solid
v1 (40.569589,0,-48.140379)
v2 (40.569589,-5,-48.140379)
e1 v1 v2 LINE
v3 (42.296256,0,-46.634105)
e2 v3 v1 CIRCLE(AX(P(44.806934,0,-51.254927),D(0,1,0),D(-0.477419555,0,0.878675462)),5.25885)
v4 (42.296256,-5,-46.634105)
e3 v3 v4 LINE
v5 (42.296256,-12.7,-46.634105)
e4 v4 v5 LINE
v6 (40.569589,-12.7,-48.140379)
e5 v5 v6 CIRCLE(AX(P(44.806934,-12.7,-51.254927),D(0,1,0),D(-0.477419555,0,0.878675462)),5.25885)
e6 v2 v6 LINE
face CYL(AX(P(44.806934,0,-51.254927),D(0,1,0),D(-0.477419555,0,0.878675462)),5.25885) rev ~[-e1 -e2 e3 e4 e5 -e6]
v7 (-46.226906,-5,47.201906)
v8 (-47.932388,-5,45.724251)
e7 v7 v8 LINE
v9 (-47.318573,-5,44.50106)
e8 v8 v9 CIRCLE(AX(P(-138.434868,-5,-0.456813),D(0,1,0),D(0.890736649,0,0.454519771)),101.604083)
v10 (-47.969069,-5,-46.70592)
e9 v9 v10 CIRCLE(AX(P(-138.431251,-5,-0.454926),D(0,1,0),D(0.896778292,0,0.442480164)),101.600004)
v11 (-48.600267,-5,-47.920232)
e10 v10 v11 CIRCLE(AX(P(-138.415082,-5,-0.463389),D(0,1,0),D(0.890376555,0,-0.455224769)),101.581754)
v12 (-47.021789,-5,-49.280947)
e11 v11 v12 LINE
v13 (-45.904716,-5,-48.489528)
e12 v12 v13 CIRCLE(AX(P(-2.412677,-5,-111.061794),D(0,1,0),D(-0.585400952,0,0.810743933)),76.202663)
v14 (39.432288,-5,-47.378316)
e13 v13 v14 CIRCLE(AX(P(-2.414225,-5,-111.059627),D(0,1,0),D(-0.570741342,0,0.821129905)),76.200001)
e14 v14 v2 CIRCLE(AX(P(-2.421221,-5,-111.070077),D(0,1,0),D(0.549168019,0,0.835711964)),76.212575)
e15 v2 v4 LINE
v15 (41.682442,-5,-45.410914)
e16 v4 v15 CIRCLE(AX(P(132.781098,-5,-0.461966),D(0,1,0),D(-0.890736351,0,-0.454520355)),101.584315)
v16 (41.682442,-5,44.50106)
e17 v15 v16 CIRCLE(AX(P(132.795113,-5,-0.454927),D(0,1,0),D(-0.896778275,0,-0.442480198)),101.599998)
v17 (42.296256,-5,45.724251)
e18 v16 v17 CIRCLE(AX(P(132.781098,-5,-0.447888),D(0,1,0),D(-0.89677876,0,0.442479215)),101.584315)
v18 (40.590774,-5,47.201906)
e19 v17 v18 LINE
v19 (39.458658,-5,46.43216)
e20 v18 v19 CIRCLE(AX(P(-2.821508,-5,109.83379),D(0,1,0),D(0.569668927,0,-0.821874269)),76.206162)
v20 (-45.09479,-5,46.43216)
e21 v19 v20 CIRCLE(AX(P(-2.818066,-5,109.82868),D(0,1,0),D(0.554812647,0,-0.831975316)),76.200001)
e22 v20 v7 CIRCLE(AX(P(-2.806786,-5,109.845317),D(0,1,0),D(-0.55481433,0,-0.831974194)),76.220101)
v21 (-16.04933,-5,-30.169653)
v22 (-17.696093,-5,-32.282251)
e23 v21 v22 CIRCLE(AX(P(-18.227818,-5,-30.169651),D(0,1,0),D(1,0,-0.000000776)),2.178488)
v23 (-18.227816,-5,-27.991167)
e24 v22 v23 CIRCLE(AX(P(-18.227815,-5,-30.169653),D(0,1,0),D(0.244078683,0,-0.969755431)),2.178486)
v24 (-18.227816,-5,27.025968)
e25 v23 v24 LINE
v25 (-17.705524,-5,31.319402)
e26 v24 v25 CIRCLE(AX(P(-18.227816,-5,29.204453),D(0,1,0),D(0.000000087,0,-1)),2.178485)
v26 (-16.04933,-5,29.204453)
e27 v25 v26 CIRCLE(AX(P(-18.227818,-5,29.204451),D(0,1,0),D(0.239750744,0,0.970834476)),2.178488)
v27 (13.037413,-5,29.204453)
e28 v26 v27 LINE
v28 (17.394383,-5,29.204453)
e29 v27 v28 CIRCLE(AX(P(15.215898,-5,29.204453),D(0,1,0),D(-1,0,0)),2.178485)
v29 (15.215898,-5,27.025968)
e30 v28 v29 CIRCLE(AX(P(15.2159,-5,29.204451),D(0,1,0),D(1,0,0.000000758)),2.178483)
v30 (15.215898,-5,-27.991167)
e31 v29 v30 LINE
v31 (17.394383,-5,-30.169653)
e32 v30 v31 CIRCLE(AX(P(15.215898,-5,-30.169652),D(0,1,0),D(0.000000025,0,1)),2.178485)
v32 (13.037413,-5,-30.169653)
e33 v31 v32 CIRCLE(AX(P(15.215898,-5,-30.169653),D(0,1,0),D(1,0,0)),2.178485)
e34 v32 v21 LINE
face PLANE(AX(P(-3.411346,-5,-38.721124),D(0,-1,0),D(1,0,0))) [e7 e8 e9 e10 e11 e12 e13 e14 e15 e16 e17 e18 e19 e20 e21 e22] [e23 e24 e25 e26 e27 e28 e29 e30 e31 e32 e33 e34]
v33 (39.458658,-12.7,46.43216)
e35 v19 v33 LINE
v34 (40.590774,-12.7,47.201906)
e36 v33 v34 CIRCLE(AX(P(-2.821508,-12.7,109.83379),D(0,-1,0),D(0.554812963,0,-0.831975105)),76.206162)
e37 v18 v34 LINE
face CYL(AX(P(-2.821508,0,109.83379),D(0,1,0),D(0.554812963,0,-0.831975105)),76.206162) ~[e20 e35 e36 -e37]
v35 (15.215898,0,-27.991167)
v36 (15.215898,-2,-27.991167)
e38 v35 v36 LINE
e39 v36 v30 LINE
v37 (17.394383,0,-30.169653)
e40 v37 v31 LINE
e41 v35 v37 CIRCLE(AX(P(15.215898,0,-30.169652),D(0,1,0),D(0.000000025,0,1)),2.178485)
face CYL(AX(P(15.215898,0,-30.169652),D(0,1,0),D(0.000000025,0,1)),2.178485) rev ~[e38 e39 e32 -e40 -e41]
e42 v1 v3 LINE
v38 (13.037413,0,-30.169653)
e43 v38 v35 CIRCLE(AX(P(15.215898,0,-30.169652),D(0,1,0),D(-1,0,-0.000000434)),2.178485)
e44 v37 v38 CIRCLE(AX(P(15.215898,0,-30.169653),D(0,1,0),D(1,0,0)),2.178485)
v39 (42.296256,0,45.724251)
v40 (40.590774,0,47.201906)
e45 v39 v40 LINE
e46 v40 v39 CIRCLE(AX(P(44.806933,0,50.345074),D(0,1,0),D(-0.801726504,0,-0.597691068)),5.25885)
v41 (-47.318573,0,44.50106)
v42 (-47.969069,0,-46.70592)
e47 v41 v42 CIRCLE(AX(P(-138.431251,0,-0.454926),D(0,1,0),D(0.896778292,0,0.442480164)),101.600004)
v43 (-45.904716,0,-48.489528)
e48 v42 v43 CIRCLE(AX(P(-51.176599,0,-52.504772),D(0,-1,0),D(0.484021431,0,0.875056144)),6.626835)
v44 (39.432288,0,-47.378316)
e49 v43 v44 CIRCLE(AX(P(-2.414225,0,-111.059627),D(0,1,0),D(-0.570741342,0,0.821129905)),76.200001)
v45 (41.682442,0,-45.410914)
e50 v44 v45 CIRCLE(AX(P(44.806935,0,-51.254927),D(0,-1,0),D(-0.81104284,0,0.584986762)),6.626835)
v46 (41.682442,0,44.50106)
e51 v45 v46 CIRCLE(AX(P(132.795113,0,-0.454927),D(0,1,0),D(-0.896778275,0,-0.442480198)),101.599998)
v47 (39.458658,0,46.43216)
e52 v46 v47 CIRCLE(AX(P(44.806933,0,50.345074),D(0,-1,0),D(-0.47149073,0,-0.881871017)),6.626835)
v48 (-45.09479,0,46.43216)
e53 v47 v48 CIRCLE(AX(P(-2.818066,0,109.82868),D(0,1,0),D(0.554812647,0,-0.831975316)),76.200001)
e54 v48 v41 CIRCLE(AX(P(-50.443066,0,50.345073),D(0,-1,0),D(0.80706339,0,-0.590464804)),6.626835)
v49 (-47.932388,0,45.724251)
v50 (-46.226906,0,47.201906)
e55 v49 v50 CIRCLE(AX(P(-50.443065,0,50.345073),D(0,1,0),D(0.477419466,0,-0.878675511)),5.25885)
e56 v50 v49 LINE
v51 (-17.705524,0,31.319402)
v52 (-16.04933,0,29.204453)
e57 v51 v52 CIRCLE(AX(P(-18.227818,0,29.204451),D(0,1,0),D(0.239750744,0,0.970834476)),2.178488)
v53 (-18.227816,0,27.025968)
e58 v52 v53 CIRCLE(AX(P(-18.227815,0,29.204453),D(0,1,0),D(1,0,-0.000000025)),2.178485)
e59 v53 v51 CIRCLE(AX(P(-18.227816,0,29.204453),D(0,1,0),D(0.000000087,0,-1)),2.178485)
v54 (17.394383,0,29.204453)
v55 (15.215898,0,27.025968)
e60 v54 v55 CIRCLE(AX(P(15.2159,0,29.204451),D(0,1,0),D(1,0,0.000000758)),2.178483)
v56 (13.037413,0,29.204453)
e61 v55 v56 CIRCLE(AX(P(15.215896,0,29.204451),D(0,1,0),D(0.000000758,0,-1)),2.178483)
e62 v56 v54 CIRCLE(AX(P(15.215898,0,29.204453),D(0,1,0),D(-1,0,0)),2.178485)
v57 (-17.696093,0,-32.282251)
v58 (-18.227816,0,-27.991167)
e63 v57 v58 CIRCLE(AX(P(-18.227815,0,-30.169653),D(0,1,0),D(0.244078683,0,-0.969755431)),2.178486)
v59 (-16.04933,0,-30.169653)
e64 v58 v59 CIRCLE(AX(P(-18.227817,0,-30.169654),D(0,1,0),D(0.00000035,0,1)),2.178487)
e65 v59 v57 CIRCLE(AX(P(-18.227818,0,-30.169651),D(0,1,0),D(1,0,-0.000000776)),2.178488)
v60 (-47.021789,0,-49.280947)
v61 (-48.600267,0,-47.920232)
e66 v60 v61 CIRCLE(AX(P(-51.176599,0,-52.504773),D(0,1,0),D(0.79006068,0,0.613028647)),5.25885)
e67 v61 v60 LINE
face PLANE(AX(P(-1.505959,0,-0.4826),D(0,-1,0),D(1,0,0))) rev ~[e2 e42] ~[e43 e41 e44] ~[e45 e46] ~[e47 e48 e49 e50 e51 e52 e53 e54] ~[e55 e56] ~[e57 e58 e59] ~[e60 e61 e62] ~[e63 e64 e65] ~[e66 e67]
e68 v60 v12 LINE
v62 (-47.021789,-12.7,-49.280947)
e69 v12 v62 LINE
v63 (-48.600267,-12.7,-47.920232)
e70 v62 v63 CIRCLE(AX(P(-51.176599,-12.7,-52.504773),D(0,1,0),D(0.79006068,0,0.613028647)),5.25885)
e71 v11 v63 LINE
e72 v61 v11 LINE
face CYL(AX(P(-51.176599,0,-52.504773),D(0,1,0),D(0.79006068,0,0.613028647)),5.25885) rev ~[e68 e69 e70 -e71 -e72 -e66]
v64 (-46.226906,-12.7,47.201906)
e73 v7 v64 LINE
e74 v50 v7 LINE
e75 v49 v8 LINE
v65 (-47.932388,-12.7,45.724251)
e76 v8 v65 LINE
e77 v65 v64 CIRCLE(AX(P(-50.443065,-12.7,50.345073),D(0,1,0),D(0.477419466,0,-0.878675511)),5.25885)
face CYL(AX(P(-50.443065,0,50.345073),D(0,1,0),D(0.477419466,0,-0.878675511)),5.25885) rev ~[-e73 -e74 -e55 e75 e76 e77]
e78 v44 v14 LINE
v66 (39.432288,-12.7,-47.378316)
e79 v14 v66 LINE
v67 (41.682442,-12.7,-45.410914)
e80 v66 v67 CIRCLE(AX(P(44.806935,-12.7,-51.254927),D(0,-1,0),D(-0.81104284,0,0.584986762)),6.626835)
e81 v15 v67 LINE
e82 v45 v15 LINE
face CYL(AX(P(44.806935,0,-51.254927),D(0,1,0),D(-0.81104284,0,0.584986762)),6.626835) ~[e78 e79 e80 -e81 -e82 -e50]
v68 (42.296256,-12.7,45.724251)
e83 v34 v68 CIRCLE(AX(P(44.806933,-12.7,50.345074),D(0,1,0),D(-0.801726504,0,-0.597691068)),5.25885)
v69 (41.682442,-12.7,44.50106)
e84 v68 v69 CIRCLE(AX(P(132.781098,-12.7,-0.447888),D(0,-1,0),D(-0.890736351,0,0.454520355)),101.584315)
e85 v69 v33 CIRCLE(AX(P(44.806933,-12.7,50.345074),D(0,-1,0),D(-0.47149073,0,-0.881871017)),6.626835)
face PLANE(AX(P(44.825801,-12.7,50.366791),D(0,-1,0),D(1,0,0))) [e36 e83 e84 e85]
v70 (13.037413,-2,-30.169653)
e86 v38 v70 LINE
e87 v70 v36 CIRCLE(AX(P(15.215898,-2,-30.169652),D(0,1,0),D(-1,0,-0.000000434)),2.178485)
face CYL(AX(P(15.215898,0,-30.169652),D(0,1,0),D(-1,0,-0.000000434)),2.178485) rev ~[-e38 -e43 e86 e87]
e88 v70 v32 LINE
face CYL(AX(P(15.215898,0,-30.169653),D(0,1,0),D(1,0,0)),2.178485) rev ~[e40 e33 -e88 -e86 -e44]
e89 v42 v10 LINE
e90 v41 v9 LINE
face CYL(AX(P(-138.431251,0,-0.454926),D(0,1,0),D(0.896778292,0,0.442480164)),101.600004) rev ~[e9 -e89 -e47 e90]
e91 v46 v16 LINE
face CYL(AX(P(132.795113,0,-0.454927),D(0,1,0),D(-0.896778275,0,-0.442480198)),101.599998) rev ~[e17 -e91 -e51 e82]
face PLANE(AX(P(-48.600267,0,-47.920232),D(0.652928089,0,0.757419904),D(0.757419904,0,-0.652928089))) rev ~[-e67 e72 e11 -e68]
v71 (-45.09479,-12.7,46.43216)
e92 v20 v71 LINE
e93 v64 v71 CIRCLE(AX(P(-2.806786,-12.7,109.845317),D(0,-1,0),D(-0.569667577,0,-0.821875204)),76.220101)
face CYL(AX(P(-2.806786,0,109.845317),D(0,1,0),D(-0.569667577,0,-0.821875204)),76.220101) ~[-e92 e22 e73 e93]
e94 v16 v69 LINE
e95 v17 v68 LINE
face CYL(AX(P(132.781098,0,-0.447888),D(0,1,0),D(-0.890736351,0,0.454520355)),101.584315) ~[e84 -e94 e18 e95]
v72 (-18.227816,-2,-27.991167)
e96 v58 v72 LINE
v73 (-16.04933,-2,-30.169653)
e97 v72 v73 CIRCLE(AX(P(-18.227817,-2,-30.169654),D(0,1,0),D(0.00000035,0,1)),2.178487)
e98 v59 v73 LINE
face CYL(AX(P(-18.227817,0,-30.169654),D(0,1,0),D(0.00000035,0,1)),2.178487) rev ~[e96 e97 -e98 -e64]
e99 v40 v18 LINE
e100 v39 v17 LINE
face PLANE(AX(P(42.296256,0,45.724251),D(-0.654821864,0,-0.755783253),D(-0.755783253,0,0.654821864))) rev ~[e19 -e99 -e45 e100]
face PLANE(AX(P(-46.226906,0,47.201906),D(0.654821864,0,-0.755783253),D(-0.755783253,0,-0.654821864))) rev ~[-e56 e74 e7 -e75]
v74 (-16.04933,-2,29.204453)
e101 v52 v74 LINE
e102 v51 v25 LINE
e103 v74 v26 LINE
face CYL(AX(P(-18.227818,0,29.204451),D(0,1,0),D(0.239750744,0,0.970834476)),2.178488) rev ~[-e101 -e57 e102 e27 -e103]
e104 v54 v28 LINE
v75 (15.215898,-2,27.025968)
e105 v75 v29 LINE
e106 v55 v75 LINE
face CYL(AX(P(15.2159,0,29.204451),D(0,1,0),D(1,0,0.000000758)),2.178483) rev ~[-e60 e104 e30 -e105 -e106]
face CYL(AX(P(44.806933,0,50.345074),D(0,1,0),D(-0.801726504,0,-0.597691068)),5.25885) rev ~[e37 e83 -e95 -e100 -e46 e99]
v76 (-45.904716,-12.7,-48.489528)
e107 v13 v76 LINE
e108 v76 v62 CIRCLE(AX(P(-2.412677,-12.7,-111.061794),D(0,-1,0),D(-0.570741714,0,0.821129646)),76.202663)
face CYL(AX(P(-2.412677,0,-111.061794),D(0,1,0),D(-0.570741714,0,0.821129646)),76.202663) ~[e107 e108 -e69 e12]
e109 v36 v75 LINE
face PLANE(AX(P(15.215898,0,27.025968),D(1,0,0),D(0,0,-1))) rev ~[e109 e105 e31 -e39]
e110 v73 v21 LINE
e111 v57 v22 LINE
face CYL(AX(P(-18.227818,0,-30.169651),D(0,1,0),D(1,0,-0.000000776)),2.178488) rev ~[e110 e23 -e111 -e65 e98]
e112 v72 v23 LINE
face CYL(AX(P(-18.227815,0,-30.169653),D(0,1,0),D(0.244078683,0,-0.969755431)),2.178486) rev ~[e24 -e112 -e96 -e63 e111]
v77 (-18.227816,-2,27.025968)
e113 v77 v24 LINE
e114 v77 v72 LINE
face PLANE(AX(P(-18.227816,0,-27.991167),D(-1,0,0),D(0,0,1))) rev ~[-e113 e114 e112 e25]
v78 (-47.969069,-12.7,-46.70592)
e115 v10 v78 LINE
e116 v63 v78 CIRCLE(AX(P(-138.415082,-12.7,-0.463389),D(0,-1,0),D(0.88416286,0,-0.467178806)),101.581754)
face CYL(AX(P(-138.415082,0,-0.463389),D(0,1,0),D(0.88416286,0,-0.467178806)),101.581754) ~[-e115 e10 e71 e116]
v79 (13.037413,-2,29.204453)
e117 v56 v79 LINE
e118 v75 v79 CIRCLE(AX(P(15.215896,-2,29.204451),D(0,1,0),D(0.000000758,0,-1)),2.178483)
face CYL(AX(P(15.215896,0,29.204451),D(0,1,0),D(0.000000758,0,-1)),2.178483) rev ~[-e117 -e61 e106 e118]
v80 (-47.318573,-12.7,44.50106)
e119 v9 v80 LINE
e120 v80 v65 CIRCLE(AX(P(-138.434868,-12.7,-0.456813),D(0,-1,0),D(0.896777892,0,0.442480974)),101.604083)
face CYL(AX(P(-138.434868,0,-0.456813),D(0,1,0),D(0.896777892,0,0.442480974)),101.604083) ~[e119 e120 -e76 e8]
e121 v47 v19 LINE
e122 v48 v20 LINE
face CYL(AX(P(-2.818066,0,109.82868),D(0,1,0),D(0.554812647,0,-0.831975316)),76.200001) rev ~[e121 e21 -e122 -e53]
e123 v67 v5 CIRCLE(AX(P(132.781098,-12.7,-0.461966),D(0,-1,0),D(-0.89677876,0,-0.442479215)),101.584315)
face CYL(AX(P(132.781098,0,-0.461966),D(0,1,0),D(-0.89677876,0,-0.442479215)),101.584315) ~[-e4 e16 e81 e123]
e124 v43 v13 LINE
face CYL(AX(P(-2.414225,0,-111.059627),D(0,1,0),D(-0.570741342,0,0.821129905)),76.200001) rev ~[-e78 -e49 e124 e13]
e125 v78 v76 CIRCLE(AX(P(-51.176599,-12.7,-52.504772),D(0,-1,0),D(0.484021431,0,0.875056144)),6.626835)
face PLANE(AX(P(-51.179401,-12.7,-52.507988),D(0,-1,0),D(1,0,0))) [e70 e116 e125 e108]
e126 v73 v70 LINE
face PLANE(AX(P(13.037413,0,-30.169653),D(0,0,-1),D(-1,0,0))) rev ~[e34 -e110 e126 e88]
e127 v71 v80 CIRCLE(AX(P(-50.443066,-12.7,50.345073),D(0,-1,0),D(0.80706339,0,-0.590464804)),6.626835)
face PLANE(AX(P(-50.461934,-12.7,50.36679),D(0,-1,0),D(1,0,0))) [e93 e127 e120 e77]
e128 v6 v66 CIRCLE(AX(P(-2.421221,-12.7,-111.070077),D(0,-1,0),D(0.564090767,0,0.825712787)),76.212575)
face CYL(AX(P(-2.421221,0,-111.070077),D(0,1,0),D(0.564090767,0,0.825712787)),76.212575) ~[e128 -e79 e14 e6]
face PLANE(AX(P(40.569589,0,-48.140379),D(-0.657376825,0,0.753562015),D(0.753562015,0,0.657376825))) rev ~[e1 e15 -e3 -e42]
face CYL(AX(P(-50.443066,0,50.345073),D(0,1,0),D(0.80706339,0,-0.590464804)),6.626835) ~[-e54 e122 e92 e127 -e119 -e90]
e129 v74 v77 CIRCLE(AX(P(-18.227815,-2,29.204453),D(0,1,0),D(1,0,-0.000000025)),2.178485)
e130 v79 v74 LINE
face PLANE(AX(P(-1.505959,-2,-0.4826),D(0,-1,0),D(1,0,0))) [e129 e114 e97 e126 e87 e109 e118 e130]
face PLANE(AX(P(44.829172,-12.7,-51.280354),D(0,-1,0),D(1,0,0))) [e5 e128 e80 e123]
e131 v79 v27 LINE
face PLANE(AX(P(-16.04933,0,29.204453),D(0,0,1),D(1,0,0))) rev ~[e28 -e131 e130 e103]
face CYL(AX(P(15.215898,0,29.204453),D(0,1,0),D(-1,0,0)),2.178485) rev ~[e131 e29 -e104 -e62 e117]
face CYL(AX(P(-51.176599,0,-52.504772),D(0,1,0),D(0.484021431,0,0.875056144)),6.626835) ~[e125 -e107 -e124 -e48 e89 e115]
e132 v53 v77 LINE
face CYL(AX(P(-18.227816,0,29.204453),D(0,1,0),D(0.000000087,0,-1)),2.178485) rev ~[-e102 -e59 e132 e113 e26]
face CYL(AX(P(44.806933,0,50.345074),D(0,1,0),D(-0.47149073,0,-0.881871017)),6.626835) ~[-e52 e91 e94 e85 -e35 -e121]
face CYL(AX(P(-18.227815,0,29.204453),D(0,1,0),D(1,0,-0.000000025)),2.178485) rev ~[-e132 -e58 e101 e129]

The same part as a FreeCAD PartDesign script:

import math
import FreeCAD as App
import Part
import Sketcher
from FreeCAD import Vector
Q = App.Units.Quantity

doc = App.newDocument("Part")
body = doc.addObject("PartDesign::Body", "Body")

# Sketch on XZ plane
sketch1 = body.newObject("Sketcher::SketchObject", "Sketch")
sketch1.AttachmentSupport = (doc.getObject("XZ_Plane"), [""])
sketch1.MapMode = "FlatFace"
sketch1.addGeometry(Part.ArcOfCircle(Part.Circle(Vector(-2.421221, -111.070077, 0), Vector(0, 0, 1), 76.212575), math.radians(55.660824), math.radians(56.690046)), False)
sketch1.addGeometry(Part.LineSegment(Vector(40.569589, -48.140379, 0), Vector(42.296256, -46.634105, 0)), False)
sketch1.addGeometry(Part.ArcOfCircle(Part.Circle(Vector(132.781098, -0.461966, 0), Vector(0, 0, 1), 101.584315), math.radians(-153.737828), math.radians(-152.965923)), False)
sketch1.addGeometry(Part.ArcOfCircle(Part.Circle(Vector(132.795113, -0.454927, 0), Vector(0, 0, 1), 101.599998), math.radians(153.737765), math.radians(206.262235)), False)
sketch1.addGeometry(Part.ArcOfCircle(Part.Circle(Vector(132.781098, -0.447888, 0), Vector(0, 0, 1), 101.584315), math.radians(152.965923), math.radians(153.737828)), False)
sketch1.addGeometry(Part.LineSegment(Vector(42.296256, 45.724251, 0), Vector(40.590774, 47.201906, 0)), False)
sketch1.addGeometry(Part.ArcOfCircle(Part.Circle(Vector(-2.821508, 109.83379, 0), Vector(0, 0, 1), 76.206162), math.radians(-56.302167), math.radians(-55.272858)), False)
sketch1.addGeometry(Part.ArcOfCircle(Part.Circle(Vector(-2.818066, 109.82868, 0), Vector(0, 0, 1), 76.200001), math.radians(-123.697811), math.radians(-56.302189)), False)
sketch1.addGeometry(Part.ArcOfCircle(Part.Circle(Vector(-2.806786, 109.845317, 0), Vector(0, 0, 1), 76.220101), math.radians(-124.727048), math.radians(-123.697927)), False)
sketch1.addGeometry(Part.LineSegment(Vector(-46.226906, 47.201906, 0), Vector(-47.932388, 45.724251, 0)), False)
sketch1.addGeometry(Part.ArcOfCircle(Part.Circle(Vector(-138.434868, -0.456813, 0), Vector(0, 0, 1), 101.604083), math.radians(26.262284), math.radians(27.03404)), False)
sketch1.addGeometry(Part.ArcOfCircle(Part.Circle(Vector(-138.431251, -0.454926, 0), Vector(0, 0, 1), 101.600004), math.radians(-27.079496), math.radians(26.262233)), False)
sketch1.addGeometry(Part.ArcOfCircle(Part.Circle(Vector(-138.415082, -0.463389, 0), Vector(0, 0, 1), 101.581754), math.radians(-27.851322), math.radians(-27.079397)), False)
sketch1.addGeometry(Part.LineSegment(Vector(-48.600267, -47.920232, 0), Vector(-47.021789, -49.280947, 0)), False)
sketch1.addGeometry(Part.ArcOfCircle(Part.Circle(Vector(-2.412677, -111.061794, 0), Vector(0, 0, 1), 76.202663), math.radians(124.801964), math.radians(125.83132)), False)
sketch1.addGeometry(Part.ArcOfCircle(Part.Circle(Vector(-2.414225, -111.059627, 0), Vector(0, 0, 1), 76.200001), math.radians(56.690127), math.radians(124.801938)), False)
sketch1.addGeometry(Part.ArcOfCircle(Part.Circle(Vector(-18.227815, -30.169653, 0), Vector(0, 0, 1), 2.178486), math.radians(90.000029), math.radians(284.127393)), False)
sketch1.addGeometry(Part.LineSegment(Vector(-18.227816, -27.991167, 0), Vector(-18.227816, 27.025968, 0)), False)
sketch1.addGeometry(Part.ArcOfCircle(Part.Circle(Vector(-18.227816, 29.204453, 0), Vector(0, 0, 1), 2.178485), math.radians(76.128204), math.radians(270.000005)), False)
sketch1.addGeometry(Part.ArcOfCircle(Part.Circle(Vector(-18.227818, 29.204451, 0), Vector(0, 0, 1), 2.178488), math.radians(0.000063), math.radians(76.12817)), False)
sketch1.addGeometry(Part.LineSegment(Vector(-16.04933, 29.204453, 0), Vector(13.037413, 29.204453, 0)), False)
sketch1.addGeometry(Part.ArcOfCircle(Part.Circle(Vector(15.215898, 29.204453, 0), Vector(0, 0, 1), 2.178485), math.radians(0), math.radians(180)), False)
sketch1.addGeometry(Part.ArcOfCircle(Part.Circle(Vector(15.2159, 29.204451, 0), Vector(0, 0, 1), 2.178483), math.radians(-90.000043), math.radians(0.000043)), False)
sketch1.addGeometry(Part.LineSegment(Vector(15.215898, 27.025968, 0), Vector(15.215898, -27.991167, 0)), False)
sketch1.addGeometry(Part.ArcOfCircle(Part.Circle(Vector(15.215898, -30.169652, 0), Vector(0, 0, 1), 2.178485), math.radians(-0.000025), math.radians(89.999999)), False)
sketch1.addGeometry(Part.ArcOfCircle(Part.Circle(Vector(15.215898, -30.169653, 0), Vector(0, 0, 1), 2.178485), math.radians(180), math.radians(360)), False)
sketch1.addGeometry(Part.LineSegment(Vector(13.037413, -30.169653, 0), Vector(-16.04933, -30.169653, 0)), False)
sketch1.addGeometry(Part.ArcOfCircle(Part.Circle(Vector(-18.227818, -30.169651, 0), Vector(0, 0, 1), 2.178488), math.radians(-75.872545), math.radians(-0.000044)), False)
sketch1.addConstraint(Sketcher.Constraint("Coincident", 0, 1, 1, 1))
sketch1.addConstraint(Sketcher.Constraint("Coincident", 1, 2, 2, 2))
sketch1.addConstraint(Sketcher.Constraint("Coincident", 2, 1, 3, 2))
sketch1.addConstraint(Sketcher.Constraint("Coincident", 3, 1, 4, 2))
sketch1.addConstraint(Sketcher.Constraint("Coincident", 4, 1, 5, 1))
sketch1.addConstraint(Sketcher.Constraint("Coincident", 5, 2, 6, 2))
sketch1.addConstraint(Sketcher.Constraint("Coincident", 6, 1, 7, 2))
sketch1.addConstraint(Sketcher.Constraint("Coincident", 7, 1, 8, 2))
sketch1.addConstraint(Sketcher.Constraint("Coincident", 8, 1, 9, 1))
sketch1.addConstraint(Sketcher.Constraint("Coincident", 9, 2, 10, 2))
sketch1.addConstraint(Sketcher.Constraint("Coincident", 10, 1, 11, 2))
sketch1.addConstraint(Sketcher.Constraint("Coincident", 11, 1, 12, 2))
sketch1.addConstraint(Sketcher.Constraint("Coincident", 12, 1, 13, 1))
sketch1.addConstraint(Sketcher.Constraint("Coincident", 13, 2, 14, 2))
sketch1.addConstraint(Sketcher.Constraint("Coincident", 14, 1, 15, 2))
sketch1.addConstraint(Sketcher.Constraint("Coincident", 15, 1, 0, 2))
sketch1.addConstraint(Sketcher.Constraint("Coincident", 16, 1, 17, 1))
sketch1.addConstraint(Sketcher.Constraint("Coincident", 17, 2, 18, 2))
sketch1.addConstraint(Sketcher.Constraint("Coincident", 18, 1, 19, 2))
sketch1.addConstraint(Sketcher.Constraint("Coincident", 19, 1, 20, 1))
sketch1.addConstraint(Sketcher.Constraint("Coincident", 20, 2, 21, 2))
sketch1.addConstraint(Sketcher.Constraint("Coincident", 21, 1, 22, 2))
sketch1.addConstraint(Sketcher.Constraint("Coincident", 22, 1, 23, 1))
sketch1.addConstraint(Sketcher.Constraint("Coincident", 23, 2, 24, 2))
sketch1.addConstraint(Sketcher.Constraint("Coincident", 24, 1, 25, 2))
sketch1.addConstraint(Sketcher.Constraint("Coincident", 25, 1, 26, 1))
sketch1.addConstraint(Sketcher.Constraint("Coincident", 26, 2, 27, 2))
sketch1.addConstraint(Sketcher.Constraint("Coincident", 27, 1, 16, 2))
sketch1.addConstraint(Sketcher.Constraint("Vertical", 17))
sketch1.addConstraint(Sketcher.Constraint("Horizontal", 20))
sketch1.addConstraint(Sketcher.Constraint("Vertical", 23))
sketch1.addConstraint(Sketcher.Constraint("Horizontal", 26))
sketch1.addConstraint(Sketcher.Constraint("Coincident", 19, 3, 18, 3))
sketch1.addConstraint(Sketcher.Constraint("Coincident", 22, 3, 21, 3))
sketch1.addConstraint(Sketcher.Constraint("Coincident", 25, 3, 24, 3))
sketch1.addConstraint(Sketcher.Constraint("Coincident", 27, 3, 16, 3))
sketch1.addConstraint(Sketcher.Constraint("Radius", 3, Q("3.9999999 in")))
sketch1.addConstraint(Sketcher.Constraint("Radius", 7, Q("3 in")))
sketch1.addConstraint(Sketcher.Constraint("Radius", 11, Q("4.0000001 in")))
sketch1.addConstraint(Sketcher.Constraint("Radius", 15, Q("3 in")))
sketch1.addConstraint(Sketcher.Constraint("Radius", 8, 76.220101))
sketch1.addConstraint(Sketcher.Constraint("Radius", 6, 76.206162))
sketch1.addConstraint(Sketcher.Constraint("Radius", 19, 2.178488))
sketch1.addConstraint(Sketcher.Constraint("Radius", 0, 76.212575))
sketch1.addConstraint(Sketcher.Constraint("Radius", 2, 101.584315))
sketch1.addConstraint(Sketcher.Constraint("Radius", 4, 101.584315))
sketch1.addConstraint(Sketcher.Constraint("Radius", 10, 101.604083))
sketch1.addConstraint(Sketcher.Constraint("Radius", 12, 101.581754))
sketch1.addConstraint(Sketcher.Constraint("Radius", 14, 76.202663))
sketch1.addConstraint(Sketcher.Constraint("Radius", 16, 2.178486))
sketch1.addConstraint(Sketcher.Constraint("Radius", 21, 2.178485))
sketch1.addConstraint(Sketcher.Constraint("Radius", 24, 2.178485))
sketch1.addConstraint(Sketcher.Constraint("DistanceX", -1, 1, 2, 3, 132.781098))
sketch1.addConstraint(Sketcher.Constraint("DistanceX", -1, 1, 4, 3, 132.781098))
sketch1.addConstraint(Sketcher.Constraint("DistanceX", -1, 1, 22, 3, 15.2159))
sketch1.addConstraint(Sketcher.Constraint("DistanceX", 8, 3, 3, 3, 135.601898))
sketch1.addConstraint(Sketcher.Constraint("DistanceY", 15, 3, 3, 3, 110.6047))
sketch1.addConstraint(Sketcher.Constraint("DistanceY", 27, 3, 19, 3, 59.374102))
sketch1.addConstraint(Sketcher.Constraint("DistanceY", 22, 3, 4, 1, 16.5198))
sketch1.addConstraint(Sketcher.Constraint("DistanceY", 19, 3, 4, 1, 16.5198))
sketch1.addConstraint(Sketcher.Constraint("DistanceX", 6, 1, 4, 1, 2.837598))
sketch1.addConstraint(Sketcher.Constraint("DistanceY", 3, 1, 6, 1, 1.9311))
sketch1.addConstraint(Sketcher.Constraint("DistanceY", 19, 3, 9, 2, 16.5198))
sketch1.addConstraint(Sketcher.Constraint("DistanceY", 10, 1, 7, 1, 1.9311))
sketch1.addConstraint(Sketcher.Constraint("DistanceX", 14, 1, 27, 3, 27.676898))
sketch1.addConstraint(Sketcher.Constraint("DistanceX", 15, 1, 0, 1, 1.137301))
sketch1.addConstraint(Sketcher.Constraint("DistanceY", 15, 1, 2, 1, 1.967402))
sketch1.addConstraint(Sketcher.Constraint("DistanceX", 14, 1, 16, 1, 27.6769))
sketch1.addConstraint(Sketcher.Constraint("DistanceY", 27, 1, 16, 3, 2.112598))
sketch1.addConstraint(Sketcher.Constraint("Distance", 1, 2.29134))
sketch1.addConstraint(Sketcher.Constraint("Distance", 13, 2.08402))
sketch1.addConstraint(Sketcher.Constraint("DistanceX", 20, 1, 20, 2, 29.086743))
sketch1.addConstraint(Sketcher.Constraint("DistanceX", 26, 2, 26, 1, 29.086743))
sketch1.addConstraint(Sketcher.Constraint("DistanceY", 23, 2, 23, 1, 55.017135))
sketch1.addConstraint(Sketcher.Constraint("DistanceX", 0, 3, -1, 1, 2.421221))
sketch1.addConstraint(Sketcher.Constraint("DistanceY", 4, 3, -1, 1, 0.447888))
sketch1.addConstraint(Sketcher.Constraint("DistanceX", 6, 3, -1, 1, 2.821508))
sketch1.addConstraint(Sketcher.Constraint("DistanceY", -1, 1, 6, 3, 109.83379))
sketch1.addConstraint(Sketcher.Constraint("DistanceY", -1, 1, 7, 3, 109.82868))
sketch1.addConstraint(Sketcher.Constraint("DistanceX", 10, 3, -1, 1, 138.434868))
sketch1.addConstraint(Sketcher.Constraint("DistanceX", 11, 3, -1, 1, 138.431251))
sketch1.addConstraint(Sketcher.Constraint("DistanceX", 12, 3, -1, 1, 138.415082))
sketch1.addConstraint(Sketcher.Constraint("DistanceY", 12, 3, -1, 1, 0.463389))
sketch1.addConstraint(Sketcher.Constraint("DistanceY", -1, 1, 19, 3, 29.204451))
sketch1.addConstraint(Sketcher.Constraint("DistanceX", -1, 1, 0, 1, 40.569589))
sketch1.addConstraint(Sketcher.Constraint("DistanceY", 0, 1, -1, 1, 48.140379))
sketch1.addConstraint(Sketcher.Constraint("DistanceX", 7, 1, -1, 1, 45.09479))
sketch1.addConstraint(Sketcher.Constraint("DistanceX", 11, 1, -1, 1, 47.969069))
sketch1.addConstraint(Sketcher.Constraint("DistanceX", 13, 2, -1, 1, 47.021789))
sketch1.addConstraint(Sketcher.Constraint("DistanceX", 26, 2, -1, 1, 16.04933))
sketch1.addConstraint(Sketcher.Constraint("DistanceY", 0, 3, 2, 3, 110.608111))
sketch1.addConstraint(Sketcher.Constraint("DistanceX", 14, 3, 3, 3, 135.20779))
sketch1.addConstraint(Sketcher.Constraint("DistanceX", 5, 2, 3, 1, 1.091668))
sketch1.addConstraint(Sketcher.Constraint("DistanceX", 8, 1, 18, 3, 27.99909))
sketch1.addConstraint(Sketcher.Constraint("DistanceY", 18, 3, 18, 1, 2.114949))
sketch1.addConstraint(Sketcher.Constraint("DistanceY", 19, 1, 18, 1, 2.114949))
sketch1.addConstraint(Sketcher.Constraint("DistanceX", 22, 1, 6, 1, 24.24276))
sketch1.addConstraint(Sketcher.Constraint("DistanceY", 2, 1, 24, 1, 15.241261))
sketch1.addConstraint(Sketcher.Constraint("DistanceY", -1, 1, 21, 1, 29.204453))
sketch1.addConstraint(Sketcher.Constraint("DistanceY", 25, 1, -1, 1, 30.169653))
pad1 = body.newObject("PartDesign::Pad", "Pad")
pad1.Profile = sketch1
pad1.Length = 5

# Sketch on XZ plane
sketch2 = body.newObject("Sketcher::SketchObject", "Sketch001")
sketch2.AttachmentSupport = (doc.getObject("XZ_Plane"), [""])
sketch2.MapMode = "FlatFace"
sketch2.addGeometry(Part.ArcOfCircle(Part.Circle(Vector(-2.806786, 109.845317, 0), Vector(0, 0, 1), 76.220101), math.radians(-124.727048), math.radians(-123.697927)), False)
sketch2.addGeometry(Part.ArcOfCircle(Part.Circle(Vector(-50.443066, 50.345073, 0), Vector(0, 0, 1), 6.626835), math.radians(-36.189999), math.radians(298.131122)), False)
sketch2.addGeometry(Part.ArcOfCircle(Part.Circle(Vector(-138.434868, -0.456813, 0), Vector(0, 0, 1), 101.604083), math.radians(26.262284), math.radians(27.03404)), False)
sketch2.addGeometry(Part.ArcOfCircle(Part.Circle(Vector(-50.443065, 50.345073, 0), Vector(0, 0, 1), 5.25885), math.radians(-36.70471), math.radians(298.516998)), False)
sketch2.addGeometry(Part.ArcOfCircle(Part.Circle(Vector(44.806933, 50.345074, 0), Vector(0, 0, 1), 5.25885), math.radians(-118.516999), math.radians(216.704711)), False)
sketch2.addGeometry(Part.ArcOfCircle(Part.Circle(Vector(132.781098, -0.447888, 0), Vector(0, 0, 1), 101.584315), math.radians(152.965923), math.radians(153.737828)), False)
sketch2.addGeometry(Part.ArcOfCircle(Part.Circle(Vector(44.806933, 50.345074, 0), Vector(0, 0, 1), 6.626835), math.radians(-118.131107), math.radians(216.190009)), False)
sketch2.addGeometry(Part.ArcOfCircle(Part.Circle(Vector(-2.821508, 109.83379, 0), Vector(0, 0, 1), 76.206162), math.radians(-56.302167), math.radians(-55.272858)), False)
sketch2.addGeometry(Part.ArcOfCircle(Part.Circle(Vector(132.781098, -0.461966, 0), Vector(0, 0, 1), 101.584315), math.radians(-153.737828), math.radians(-152.965923)), False)
sketch2.addGeometry(Part.ArcOfCircle(Part.Circle(Vector(44.806934, -51.254927, 0), Vector(0, 0, 1), 5.25885), math.radians(143.683236), math.radians(478.517004)), False)
sketch2.addGeometry(Part.ArcOfCircle(Part.Circle(Vector(-2.421221, -111.070077, 0), Vector(0, 0, 1), 76.212575), math.radians(55.660824), math.radians(56.690046)), False)
sketch2.addGeometry(Part.ArcOfCircle(Part.Circle(Vector(44.806935, -51.254927, 0), Vector(0, 0, 1), 6.626835), math.radians(144.197945), math.radians(478.131124)), False)
sketch2.addGeometry(Part.ArcOfCircle(Part.Circle(Vector(-51.176599, -52.504772, 0), Vector(0, 0, 1), 6.626835), math.radians(61.051621), math.radians(397.294125)), False)
sketch2.addGeometry(Part.ArcOfCircle(Part.Circle(Vector(-2.412677, -111.061794, 0), Vector(0, 0, 1), 76.202663), math.radians(124.801964), math.radians(125.83132)), False)
sketch2.addGeometry(Part.ArcOfCircle(Part.Circle(Vector(-51.176599, -52.504773, 0), Vector(0, 0, 1), 5.25885), math.radians(60.665717), math.radians(397.808817)), False)
sketch2.addGeometry(Part.ArcOfCircle(Part.Circle(Vector(-138.415082, -0.463389, 0), Vector(0, 0, 1), 101.581754), math.radians(-27.851322), math.radians(-27.079397)), False)
sketch2.addConstraint(Sketcher.Constraint("Coincident", 0, 2, 1, 1))
sketch2.addConstraint(Sketcher.Constraint("Coincident", 1, 2, 2, 1))
sketch2.addConstraint(Sketcher.Constraint("Coincident", 2, 2, 3, 2))
sketch2.addConstraint(Sketcher.Constraint("Coincident", 3, 1, 0, 1))
sketch2.addConstraint(Sketcher.Constraint("Coincident", 4, 1, 5, 1))
sketch2.addConstraint(Sketcher.Constraint("Coincident", 5, 2, 6, 1))
sketch2.addConstraint(Sketcher.Constraint("Coincident", 6, 2, 7, 1))
sketch2.addConstraint(Sketcher.Constraint("Coincident", 7, 2, 4, 2))
sketch2.addConstraint(Sketcher.Constraint("Coincident", 8, 2, 9, 2))
sketch2.addConstraint(Sketcher.Constraint("Coincident", 9, 1, 10, 1))
sketch2.addConstraint(Sketcher.Constraint("Coincident", 10, 2, 11, 1))
sketch2.addConstraint(Sketcher.Constraint("Coincident", 11, 2, 8, 1))
sketch2.addConstraint(Sketcher.Constraint("Coincident", 12, 2, 13, 1))
sketch2.addConstraint(Sketcher.Constraint("Coincident", 13, 2, 14, 2))
sketch2.addConstraint(Sketcher.Constraint("Coincident", 14, 1, 15, 1))
sketch2.addConstraint(Sketcher.Constraint("Coincident", 15, 2, 12, 1))
sketch2.addConstraint(Sketcher.Constraint("Coincident", 3, 3, 1, 3))
sketch2.addConstraint(Sketcher.Constraint("Coincident", 6, 3, 4, 3))
sketch2.addConstraint(Sketcher.Constraint("Coincident", 11, 3, 9, 3))
sketch2.addConstraint(Sketcher.Constraint("Coincident", 14, 3, 12, 3))
sketch2.addConstraint(Sketcher.Constraint("Equal", 3, 4))
sketch2.addConstraint(Sketcher.Constraint("Equal", 1, 6))
sketch2.addConstraint(Sketcher.Constraint("Equal", 5, 8))
sketch2.addConstraint(Sketcher.Constraint("Equal", 4, 9))
sketch2.addConstraint(Sketcher.Constraint("Equal", 6, 11))
sketch2.addConstraint(Sketcher.Constraint("Equal", 11, 12))
sketch2.addConstraint(Sketcher.Constraint("Equal", 9, 14))
sketch2.addConstraint(Sketcher.Constraint("Horizontal", 3, 3, 4, 3))
sketch2.addConstraint(Sketcher.Constraint("Horizontal", 2, 2, 4, 1))
sketch2.addConstraint(Sketcher.Constraint("Horizontal", 0, 2, 6, 2))
sketch2.addConstraint(Sketcher.Constraint("Vertical", 5, 3, 8, 3))
sketch2.addConstraint(Sketcher.Constraint("Vertical", 6, 3, 9, 3))
sketch2.addConstraint(Sketcher.Constraint("Vertical", 4, 1, 8, 2))
sketch2.addConstraint(Sketcher.Constraint("DistanceY", 9, 3, 4, 3, Q("4 in")))
sketch2.addConstraint(Sketcher.Constraint("Radius", 0, 76.220101))
sketch2.addConstraint(Sketcher.Constraint("DistanceX", 3, 3, 4, 3, Q("3.7499999 in")))
sketch2.addConstraint(Sketcher.Constraint("Radius", 3, 5.25885))
sketch2.addConstraint(Sketcher.Constraint("Radius", 7, 76.206162))
sketch2.addConstraint(Sketcher.Constraint("Radius", 1, 6.626835))
sketch2.addConstraint(Sketcher.Constraint("Radius", 2, 101.604083))
sketch2.addConstraint(Sketcher.Constraint("Radius", 5, 101.584315))
sketch2.addConstraint(Sketcher.Constraint("Radius", 10, 76.212575))
sketch2.addConstraint(Sketcher.Constraint("Radius", 13, 76.202663))
sketch2.addConstraint(Sketcher.Constraint("Radius", 15, 101.581754))
sketch2.addConstraint(Sketcher.Constraint("DistanceX", -1, 1, 5, 3, 132.781098))
sketch2.addConstraint(Sketcher.Constraint("DistanceX", 12, 3, -1, 1, 51.176599))
sketch2.addConstraint(Sketcher.Constraint("DistanceX", 2, 3, 4, 3, 183.241801))
sketch2.addConstraint(Sketcher.Constraint("DistanceY", 1, 2, 0, 2, 1.9311))
sketch2.addConstraint(Sketcher.Constraint("DistanceX", 2, 2, 0, 2, 2.837598))
sketch2.addConstraint(Sketcher.Constraint("DistanceY", 10, 2, 11, 2, 1.967402))
sketch2.addConstraint(Sketcher.Constraint("DistanceX", 2, 3, -1, 1, 138.434868))
sketch2.addConstraint(Sketcher.Constraint("DistanceY", 5, 3, -1, 1, 0.447888))
sketch2.addConstraint(Sketcher.Constraint("DistanceX", 7, 3, -1, 1, 2.821508))
sketch2.addConstraint(Sketcher.Constraint("DistanceX", 10, 3, -1, 1, 2.421221))
sketch2.addConstraint(Sketcher.Constraint("DistanceX", 15, 3, -1, 1, 138.415082))
sketch2.addConstraint(Sketcher.Constraint("DistanceY", 15, 3, -1, 1, 0.463389))
sketch2.addConstraint(Sketcher.Constraint("DistanceX", 13, 2, -1, 1, 47.021789))
sketch2.addConstraint(Sketcher.Constraint("DistanceY", 14, 1, -1, 1, 47.920232))
sketch2.addConstraint(Sketcher.Constraint("DistanceX", 1, 3, 0, 3, 47.63628))
sketch2.addConstraint(Sketcher.Constraint("DistanceX", 13, 3, 9, 3, 47.219611))
pad2 = body.newObject("PartDesign::Pad", "Pad001")
pad2.Profile = sketch2
pad2.Length = Q("0.5 in")

# Sketch on XZ plane
sketch3 = body.newObject("Sketcher::SketchObject", "Sketch002")
sketch3.AttachmentSupport = (doc.getObject("XZ_Plane"), [""])
sketch3.MapMode = "FlatFace"
sketch3.addGeometry(Part.LineSegment(Vector(13.037413, 29.204453, 0), Vector(-16.04933, 29.204453, 0)), False)
sketch3.addGeometry(Part.ArcOfCircle(Part.Circle(Vector(-18.227815, 29.204453, 0), Vector(0, 0, 1), 2.178485), math.radians(-90.000025), math.radians(-0.000001)), False)
sketch3.addGeometry(Part.LineSegment(Vector(-18.227816, 27.025968, 0), Vector(-18.227816, -27.991167, 0)), False)
sketch3.addGeometry(Part.ArcOfCircle(Part.Circle(Vector(-18.227817, -30.169654, 0), Vector(0, 0, 1), 2.178487), math.radians(0.00002), math.radians(89.99998)), False)
sketch3.addGeometry(Part.LineSegment(Vector(-16.04933, -30.169653, 0), Vector(13.037413, -30.169653, 0)), False)
sketch3.addGeometry(Part.ArcOfCircle(Part.Circle(Vector(15.215898, -30.169652, 0), Vector(0, 0, 1), 2.178485), math.radians(90.000001), math.radians(180.000025)), False)
sketch3.addGeometry(Part.LineSegment(Vector(15.215898, -27.991167, 0), Vector(15.215898, 27.025968, 0)), False)
sketch3.addGeometry(Part.ArcOfCircle(Part.Circle(Vector(15.215896, 29.204451, 0), Vector(0, 0, 1), 2.178483), math.radians(179.999957), math.radians(270.000043)), False)
sketch3.addConstraint(Sketcher.Constraint("Coincident", 0, 2, 1, 2))
sketch3.addConstraint(Sketcher.Constraint("Coincident", 1, 1, 2, 1))
sketch3.addConstraint(Sketcher.Constraint("Coincident", 2, 2, 3, 2))
sketch3.addConstraint(Sketcher.Constraint("Coincident", 3, 1, 4, 1))
sketch3.addConstraint(Sketcher.Constraint("Coincident", 4, 2, 5, 2))
sketch3.addConstraint(Sketcher.Constraint("Coincident", 5, 1, 6, 1))
sketch3.addConstraint(Sketcher.Constraint("Coincident", 6, 2, 7, 2))
sketch3.addConstraint(Sketcher.Constraint("Coincident", 7, 1, 0, 1))
sketch3.addConstraint(Sketcher.Constraint("Horizontal", 0))
sketch3.addConstraint(Sketcher.Constraint("Vertical", 2))
sketch3.addConstraint(Sketcher.Constraint("Horizontal", 4))
sketch3.addConstraint(Sketcher.Constraint("Vertical", 6))
sketch3.addConstraint(Sketcher.Constraint("Equal", 1, 3))
sketch3.addConstraint(Sketcher.Constraint("Equal", 3, 5))
sketch3.addConstraint(Sketcher.Constraint("Equal", 5, 7))
sketch3.addConstraint(Sketcher.Constraint("Horizontal", 3, 3, 5, 3))
sketch3.addConstraint(Sketcher.Constraint("Horizontal", 1, 3, 7, 3))
sketch3.addConstraint(Sketcher.Constraint("Horizontal", 7, 3, 0, 2))
sketch3.addConstraint(Sketcher.Constraint("Horizontal", 5, 3, 3, 1))
sketch3.addConstraint(Sketcher.Constraint("Vertical", 1, 3, 3, 3))
sketch3.addConstraint(Sketcher.Constraint("Vertical", 5, 3, 7, 3))
sketch3.addConstraint(Sketcher.Constraint("Vertical", 3, 3, 1, 1))
sketch3.addConstraint(Sketcher.Constraint("Vertical", 7, 3, 5, 1))
sketch3.addConstraint(Sketcher.Constraint("Radius", 1, 2.178485))
sketch3.addConstraint(Sketcher.Constraint("DistanceX", -1, 1, 5, 3, 15.215898))
sketch3.addConstraint(Sketcher.Constraint("DistanceX", 0, 2, 0, 1, 29.086743))
sketch3.addConstraint(Sketcher.Constraint("DistanceY", 2, 2, 2, 1, 55.017135))
sketch3.addConstraint(Sketcher.Constraint("DistanceY", -1, 1, 7, 3, 29.204451))
pad3 = body.newObject("PartDesign::Pad", "Pad002")
pad3.Profile = sketch3
pad3.Length = 2

doc.recompute()
